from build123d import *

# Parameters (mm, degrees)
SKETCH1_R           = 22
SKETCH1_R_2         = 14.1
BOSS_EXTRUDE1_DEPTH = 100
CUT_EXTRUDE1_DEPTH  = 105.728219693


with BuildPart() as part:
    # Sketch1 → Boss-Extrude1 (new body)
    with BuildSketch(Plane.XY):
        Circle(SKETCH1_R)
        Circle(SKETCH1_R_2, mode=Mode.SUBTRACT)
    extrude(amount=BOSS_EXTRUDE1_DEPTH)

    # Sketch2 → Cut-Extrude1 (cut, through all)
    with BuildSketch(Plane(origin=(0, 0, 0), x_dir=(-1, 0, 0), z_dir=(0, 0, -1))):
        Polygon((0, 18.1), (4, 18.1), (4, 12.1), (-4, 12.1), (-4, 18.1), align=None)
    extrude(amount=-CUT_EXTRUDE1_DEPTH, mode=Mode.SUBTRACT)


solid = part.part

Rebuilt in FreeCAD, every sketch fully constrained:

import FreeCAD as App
import Part
import Sketcher

V = App.Vector
Q = App.Units.Quantity

doc = App.newDocument("Part")
params = doc.addObject("Spreadsheet::Sheet", "Params")
for row, (alias, value) in enumerate([
    ("sketch1_diameter", "44 mm"),
    ("sketch1_diameter2", "28.2 mm"),
    ("pad1_length", "100 mm"),
    ("sketch2_width", "8 mm"),
    ("sketch2_height", "6 mm"),
], start=1):
    params.set(f"A{row}", alias)
    params.set(f"B{row}", "=" + value)
    params.setAlias(f"B{row}", alias)

body = doc.addObject("PartDesign::Body", "Body")

sketch1 = doc.addObject("Sketcher::SketchObject", "Sketch")
body.addObject(sketch1)
sketch1.AttachmentSupport = (doc.XY_Plane, [""])
sketch1.MapMode = "FlatFace"
sketch1.addGeometry(Part.Circle(V(0, 0, 0), V(0, 0, 1), 22), False)
sketch1.addGeometry(Part.Circle(V(0, 0, 0), V(0, 0, 1), 14), False)
sketch1.addConstraint(Sketcher.Constraint("Coincident", 0, 3, -1, 1))
sketch1.addConstraint(Sketcher.Constraint("Coincident", 1, 3, -1, 1))
sketch1.addConstraint(Sketcher.Constraint("Diameter", 0, Q("44 mm")))
sketch1.addConstraint(Sketcher.Constraint("Diameter", 1, Q("28.2 mm")))
sketch1.setExpression("Constraints[2]", "Params.sketch1_diameter")
sketch1.setExpression("Constraints[3]", "Params.sketch1_diameter2")
pad1 = doc.addObject("PartDesign::Pad", "Pad")
body.addObject(pad1)
pad1.Profile = sketch1
pad1.setExpression("Length", "Params.pad1_length")

sketch2 = doc.addObject("Sketcher::SketchObject", "Sketch001")
body.addObject(sketch2)
sketch2.AttachmentSupport = (doc.XY_Plane, [""])
sketch2.MapMode = "FlatFace"
sketch2.addGeometry(Part.LineSegment(V(-4, 18, 0), V(4, 18, 0)), False)
sketch2.addGeometry(Part.LineSegment(V(4, 18, 0), V(4, 12, 0)), False)
sketch2.addGeometry(Part.LineSegment(V(4, 12, 0), V(-4, 12, 0)), False)
sketch2.addGeometry(Part.LineSegment(V(-4, 12, 0), V(-4, 18, 0)), False)
sketch2.addConstraint(Sketcher.Constraint("Coincident", 0, 2, 1, 1))
sketch2.addConstraint(Sketcher.Constraint("Coincident", 1, 2, 2, 1))
sketch2.addConstraint(Sketcher.Constraint("Coincident", 2, 2, 3, 1))
sketch2.addConstraint(Sketcher.Constraint("Coincident", 3, 2, 0, 1))
sketch2.addConstraint(Sketcher.Constraint("Horizontal", 0))
sketch2.addConstraint(Sketcher.Constraint("Vertical", 1))
sketch2.addConstraint(Sketcher.Constraint("Horizontal", 2))
sketch2.addConstraint(Sketcher.Constraint("Vertical", 3))
sketch2.addConstraint(Sketcher.Constraint("DistanceX", 0, 1, 0, 2, Q("8 mm")))
sketch2.addConstraint(Sketcher.Constraint("DistanceY", 1, 2, 1, 1, Q("6 mm")))
sketch2.addConstraint(Sketcher.Constraint("DistanceX", -1, 1, 0, 2, Q("4 mm")))
sketch2.addConstraint(Sketcher.Constraint("DistanceY", -1, 1, 0, 2, Q("18.1 mm")))
sketch2.setExpression("Constraints[8]", "Params.sketch2_width")
sketch2.setExpression("Constraints[9]", "Params.sketch2_height")
pocket1 = doc.addObject("PartDesign::Pocket", "Pocket")
body.addObject(pocket1)
pocket1.Profile = sketch2
pocket1.Type = "ThroughAll"
pocket1.Reversed = True

doc.recompute()
